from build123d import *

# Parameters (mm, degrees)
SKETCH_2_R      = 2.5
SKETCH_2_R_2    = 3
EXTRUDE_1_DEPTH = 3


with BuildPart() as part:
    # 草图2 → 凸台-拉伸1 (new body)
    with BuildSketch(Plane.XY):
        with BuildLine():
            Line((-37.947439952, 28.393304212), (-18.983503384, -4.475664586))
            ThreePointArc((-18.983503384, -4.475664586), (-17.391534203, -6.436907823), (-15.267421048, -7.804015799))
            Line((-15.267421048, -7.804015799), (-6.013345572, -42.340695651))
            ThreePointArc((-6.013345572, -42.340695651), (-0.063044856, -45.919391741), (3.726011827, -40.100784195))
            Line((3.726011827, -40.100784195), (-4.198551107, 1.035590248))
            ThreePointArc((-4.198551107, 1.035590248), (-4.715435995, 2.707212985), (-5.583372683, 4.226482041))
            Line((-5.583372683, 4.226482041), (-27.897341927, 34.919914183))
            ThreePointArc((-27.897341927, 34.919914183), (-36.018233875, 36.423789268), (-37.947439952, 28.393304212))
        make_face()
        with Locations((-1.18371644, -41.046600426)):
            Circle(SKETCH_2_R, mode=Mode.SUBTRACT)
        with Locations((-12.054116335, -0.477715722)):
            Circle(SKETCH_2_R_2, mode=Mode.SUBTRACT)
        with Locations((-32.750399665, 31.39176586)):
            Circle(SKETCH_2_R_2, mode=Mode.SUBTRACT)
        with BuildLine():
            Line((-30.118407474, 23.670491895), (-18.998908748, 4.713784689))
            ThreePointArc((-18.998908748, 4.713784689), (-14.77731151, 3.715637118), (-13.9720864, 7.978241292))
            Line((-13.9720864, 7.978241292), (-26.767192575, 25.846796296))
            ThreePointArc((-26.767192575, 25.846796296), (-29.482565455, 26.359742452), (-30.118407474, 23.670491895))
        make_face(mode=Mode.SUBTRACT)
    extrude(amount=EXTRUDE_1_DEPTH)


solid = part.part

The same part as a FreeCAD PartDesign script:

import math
import FreeCAD as App
import Part
import Sketcher
Q = App.Units.Quantity

doc = App.newDocument("Part")
body = doc.addObject("PartDesign::Body", "Body")

sketch1 = doc.addObject("Sketcher::SketchObject", "Sketch")
body.addObject(sketch1)
sketch1.AttachmentSupport = (doc.XY_Plane, [""])
sketch1.MapMode = "FlatFace"
sketch1.addGeometry([
    Part.LineSegment(App.Vector(-37.9, 28.4, 0), App.Vector(-19, -4.5, 0)),
    Part.ArcOfCircle(Part.Circle(App.Vector(-12.1, -0.5, 0), App.Vector(0, 0, 1), 8), math.radians(-150), math.radians(-114)),
    Part.LineSegment(App.Vector(-15.3, -7.8, 0), App.Vector(-6, -42.3, 0)),
    Part.ArcOfCircle(Part.Circle(App.Vector(-1.2, -41, 0), App.Vector(0, 0, 1), 5), math.radians(-165), math.radians(11)),
    Part.LineSegment(App.Vector(3.7, -40.1, 0), App.Vector(-4.2, 1, 0)),
    Part.ArcOfCircle(Part.Circle(App.Vector(-12.1, -0.5, 0), App.Vector(0, 0, 1), 8), math.radians(11), math.radians(36)),
    Part.LineSegment(App.Vector(-5.6, 4.2, 0), App.Vector(-27.9, 34.9, 0)),
    Part.ArcOfCircle(Part.Circle(App.Vector(-32.8, 31.4, 0), App.Vector(0, 0, 1), 6), math.radians(36), math.radians(210)),
    Part.Circle(App.Vector(-1.2, -41, 0), App.Vector(0, 0, 1), 2.5),
    Part.Circle(App.Vector(-32.8, 31.4, 0), App.Vector(0, 0, 1), 3),
    Part.LineSegment(App.Vector(-19, 4.7, 0), App.Vector(-30.1, 23.7, 0)),
    Part.ArcOfCircle(Part.Circle(App.Vector(-28.4, 24.7, 0), App.Vector(0, 0, 1), 2), math.radians(36), math.radians(210)),
    Part.LineSegment(App.Vector(-26.8, 25.8, 0), App.Vector(-14, 8, 0)),
    Part.ArcOfCircle(Part.Circle(App.Vector(-16.4, 6.2, 0), App.Vector(0, 0, 1), 3), math.radians(-150), math.radians(36)),
    Part.Circle(App.Vector(-12.1, -0.5, 0), App.Vector(0, 0, 1), 3),
], False)
sketch1.addConstraint([
    Sketcher.Constraint("Tangent", 0, 2, 1, 1),
    Sketcher.Constraint("Coincident", 1, 2, 2, 1),
    Sketcher.Constraint("Tangent", 2, 2, 3, 1),
    Sketcher.Constraint("Tangent", 3, 2, 4, 1),
    Sketcher.Constraint("Tangent", 4, 2, 5, 1),
    Sketcher.Constraint("Tangent", 5, 2, 6, 1),
    Sketcher.Constraint("Tangent", 6, 2, 7, 1),
    Sketcher.Constraint("Tangent", 7, 2, 0, 1),
    Sketcher.Constraint("Tangent", 10, 2, 11, 2),
    Sketcher.Constraint("Tangent", 11, 1, 12, 1),
    Sketcher.Constraint("Tangent", 12, 2, 13, 2),
    Sketcher.Constraint("Tangent", 13, 1, 10, 1),
    Sketcher.Constraint("Coincident", 5, 3, 1, 3),
    Sketcher.Constraint("Coincident", 8, 3, 3, 3),
    Sketcher.Constraint("Coincident", 9, 3, 7, 3),
    Sketcher.Constraint("Coincident", 14, 3, 1, 3),
    Sketcher.Constraint("Equal", 1, 5),
    Sketcher.Constraint("Equal", 9, 13),
    Sketcher.Constraint("Equal", 13, 14),
    Sketcher.Constraint("Diameter", 8, Q("5 mm")),
    Sketcher.Constraint("Diameter", 9, Q("6 mm")),
    Sketcher.Constraint("Radius", 1, Q("8 mm")),
    Sketcher.Constraint("Radius", 3, Q("5 mm")),
    Sketcher.Constraint("Radius", 7, Q("6 mm")),
    Sketcher.Constraint("Radius", 11, Q("2 mm")),
    Sketcher.Constraint("Angle", 2, Q("-75 deg")),
    Sketcher.Constraint("DistanceY", 3, 3, 11, 3, Q("65.729002 mm")),
    Sketcher.Constraint("DistanceY", 3, 3, -1, 1, Q("41.0466 mm")),
    Sketcher.Constraint("DistanceX", 7, 3, -1, 1, Q("32.7504 mm")),
    Sketcher.Constraint("DistanceX", 1, 3, 3, 3, Q("10.8704 mm")),
    Sketcher.Constraint("DistanceY", 1, 2, 5, 3, Q("7.3263 mm")),
    Sketcher.Constraint("DistanceX", 7, 2, 6, 2, Q("10.050098 mm")),
    Sketcher.Constraint("DistanceY", 5, 3, 13, 1, Q("5.1915 mm")),
    Sketcher.Constraint("Distance", 0, Q("37.947332 mm")),
    Sketcher.Constraint("Distance", 10, Q("21.977261 mm")),
    Sketcher.Constraint("DistanceX", 13, 3, -1, 1, Q("16.411229 mm")),
])
pad1 = doc.addObject("PartDesign::Pad", "Pad")
body.addObject(pad1)
pad1.Profile = sketch1
pad1.Length = 3

doc.recompute()
